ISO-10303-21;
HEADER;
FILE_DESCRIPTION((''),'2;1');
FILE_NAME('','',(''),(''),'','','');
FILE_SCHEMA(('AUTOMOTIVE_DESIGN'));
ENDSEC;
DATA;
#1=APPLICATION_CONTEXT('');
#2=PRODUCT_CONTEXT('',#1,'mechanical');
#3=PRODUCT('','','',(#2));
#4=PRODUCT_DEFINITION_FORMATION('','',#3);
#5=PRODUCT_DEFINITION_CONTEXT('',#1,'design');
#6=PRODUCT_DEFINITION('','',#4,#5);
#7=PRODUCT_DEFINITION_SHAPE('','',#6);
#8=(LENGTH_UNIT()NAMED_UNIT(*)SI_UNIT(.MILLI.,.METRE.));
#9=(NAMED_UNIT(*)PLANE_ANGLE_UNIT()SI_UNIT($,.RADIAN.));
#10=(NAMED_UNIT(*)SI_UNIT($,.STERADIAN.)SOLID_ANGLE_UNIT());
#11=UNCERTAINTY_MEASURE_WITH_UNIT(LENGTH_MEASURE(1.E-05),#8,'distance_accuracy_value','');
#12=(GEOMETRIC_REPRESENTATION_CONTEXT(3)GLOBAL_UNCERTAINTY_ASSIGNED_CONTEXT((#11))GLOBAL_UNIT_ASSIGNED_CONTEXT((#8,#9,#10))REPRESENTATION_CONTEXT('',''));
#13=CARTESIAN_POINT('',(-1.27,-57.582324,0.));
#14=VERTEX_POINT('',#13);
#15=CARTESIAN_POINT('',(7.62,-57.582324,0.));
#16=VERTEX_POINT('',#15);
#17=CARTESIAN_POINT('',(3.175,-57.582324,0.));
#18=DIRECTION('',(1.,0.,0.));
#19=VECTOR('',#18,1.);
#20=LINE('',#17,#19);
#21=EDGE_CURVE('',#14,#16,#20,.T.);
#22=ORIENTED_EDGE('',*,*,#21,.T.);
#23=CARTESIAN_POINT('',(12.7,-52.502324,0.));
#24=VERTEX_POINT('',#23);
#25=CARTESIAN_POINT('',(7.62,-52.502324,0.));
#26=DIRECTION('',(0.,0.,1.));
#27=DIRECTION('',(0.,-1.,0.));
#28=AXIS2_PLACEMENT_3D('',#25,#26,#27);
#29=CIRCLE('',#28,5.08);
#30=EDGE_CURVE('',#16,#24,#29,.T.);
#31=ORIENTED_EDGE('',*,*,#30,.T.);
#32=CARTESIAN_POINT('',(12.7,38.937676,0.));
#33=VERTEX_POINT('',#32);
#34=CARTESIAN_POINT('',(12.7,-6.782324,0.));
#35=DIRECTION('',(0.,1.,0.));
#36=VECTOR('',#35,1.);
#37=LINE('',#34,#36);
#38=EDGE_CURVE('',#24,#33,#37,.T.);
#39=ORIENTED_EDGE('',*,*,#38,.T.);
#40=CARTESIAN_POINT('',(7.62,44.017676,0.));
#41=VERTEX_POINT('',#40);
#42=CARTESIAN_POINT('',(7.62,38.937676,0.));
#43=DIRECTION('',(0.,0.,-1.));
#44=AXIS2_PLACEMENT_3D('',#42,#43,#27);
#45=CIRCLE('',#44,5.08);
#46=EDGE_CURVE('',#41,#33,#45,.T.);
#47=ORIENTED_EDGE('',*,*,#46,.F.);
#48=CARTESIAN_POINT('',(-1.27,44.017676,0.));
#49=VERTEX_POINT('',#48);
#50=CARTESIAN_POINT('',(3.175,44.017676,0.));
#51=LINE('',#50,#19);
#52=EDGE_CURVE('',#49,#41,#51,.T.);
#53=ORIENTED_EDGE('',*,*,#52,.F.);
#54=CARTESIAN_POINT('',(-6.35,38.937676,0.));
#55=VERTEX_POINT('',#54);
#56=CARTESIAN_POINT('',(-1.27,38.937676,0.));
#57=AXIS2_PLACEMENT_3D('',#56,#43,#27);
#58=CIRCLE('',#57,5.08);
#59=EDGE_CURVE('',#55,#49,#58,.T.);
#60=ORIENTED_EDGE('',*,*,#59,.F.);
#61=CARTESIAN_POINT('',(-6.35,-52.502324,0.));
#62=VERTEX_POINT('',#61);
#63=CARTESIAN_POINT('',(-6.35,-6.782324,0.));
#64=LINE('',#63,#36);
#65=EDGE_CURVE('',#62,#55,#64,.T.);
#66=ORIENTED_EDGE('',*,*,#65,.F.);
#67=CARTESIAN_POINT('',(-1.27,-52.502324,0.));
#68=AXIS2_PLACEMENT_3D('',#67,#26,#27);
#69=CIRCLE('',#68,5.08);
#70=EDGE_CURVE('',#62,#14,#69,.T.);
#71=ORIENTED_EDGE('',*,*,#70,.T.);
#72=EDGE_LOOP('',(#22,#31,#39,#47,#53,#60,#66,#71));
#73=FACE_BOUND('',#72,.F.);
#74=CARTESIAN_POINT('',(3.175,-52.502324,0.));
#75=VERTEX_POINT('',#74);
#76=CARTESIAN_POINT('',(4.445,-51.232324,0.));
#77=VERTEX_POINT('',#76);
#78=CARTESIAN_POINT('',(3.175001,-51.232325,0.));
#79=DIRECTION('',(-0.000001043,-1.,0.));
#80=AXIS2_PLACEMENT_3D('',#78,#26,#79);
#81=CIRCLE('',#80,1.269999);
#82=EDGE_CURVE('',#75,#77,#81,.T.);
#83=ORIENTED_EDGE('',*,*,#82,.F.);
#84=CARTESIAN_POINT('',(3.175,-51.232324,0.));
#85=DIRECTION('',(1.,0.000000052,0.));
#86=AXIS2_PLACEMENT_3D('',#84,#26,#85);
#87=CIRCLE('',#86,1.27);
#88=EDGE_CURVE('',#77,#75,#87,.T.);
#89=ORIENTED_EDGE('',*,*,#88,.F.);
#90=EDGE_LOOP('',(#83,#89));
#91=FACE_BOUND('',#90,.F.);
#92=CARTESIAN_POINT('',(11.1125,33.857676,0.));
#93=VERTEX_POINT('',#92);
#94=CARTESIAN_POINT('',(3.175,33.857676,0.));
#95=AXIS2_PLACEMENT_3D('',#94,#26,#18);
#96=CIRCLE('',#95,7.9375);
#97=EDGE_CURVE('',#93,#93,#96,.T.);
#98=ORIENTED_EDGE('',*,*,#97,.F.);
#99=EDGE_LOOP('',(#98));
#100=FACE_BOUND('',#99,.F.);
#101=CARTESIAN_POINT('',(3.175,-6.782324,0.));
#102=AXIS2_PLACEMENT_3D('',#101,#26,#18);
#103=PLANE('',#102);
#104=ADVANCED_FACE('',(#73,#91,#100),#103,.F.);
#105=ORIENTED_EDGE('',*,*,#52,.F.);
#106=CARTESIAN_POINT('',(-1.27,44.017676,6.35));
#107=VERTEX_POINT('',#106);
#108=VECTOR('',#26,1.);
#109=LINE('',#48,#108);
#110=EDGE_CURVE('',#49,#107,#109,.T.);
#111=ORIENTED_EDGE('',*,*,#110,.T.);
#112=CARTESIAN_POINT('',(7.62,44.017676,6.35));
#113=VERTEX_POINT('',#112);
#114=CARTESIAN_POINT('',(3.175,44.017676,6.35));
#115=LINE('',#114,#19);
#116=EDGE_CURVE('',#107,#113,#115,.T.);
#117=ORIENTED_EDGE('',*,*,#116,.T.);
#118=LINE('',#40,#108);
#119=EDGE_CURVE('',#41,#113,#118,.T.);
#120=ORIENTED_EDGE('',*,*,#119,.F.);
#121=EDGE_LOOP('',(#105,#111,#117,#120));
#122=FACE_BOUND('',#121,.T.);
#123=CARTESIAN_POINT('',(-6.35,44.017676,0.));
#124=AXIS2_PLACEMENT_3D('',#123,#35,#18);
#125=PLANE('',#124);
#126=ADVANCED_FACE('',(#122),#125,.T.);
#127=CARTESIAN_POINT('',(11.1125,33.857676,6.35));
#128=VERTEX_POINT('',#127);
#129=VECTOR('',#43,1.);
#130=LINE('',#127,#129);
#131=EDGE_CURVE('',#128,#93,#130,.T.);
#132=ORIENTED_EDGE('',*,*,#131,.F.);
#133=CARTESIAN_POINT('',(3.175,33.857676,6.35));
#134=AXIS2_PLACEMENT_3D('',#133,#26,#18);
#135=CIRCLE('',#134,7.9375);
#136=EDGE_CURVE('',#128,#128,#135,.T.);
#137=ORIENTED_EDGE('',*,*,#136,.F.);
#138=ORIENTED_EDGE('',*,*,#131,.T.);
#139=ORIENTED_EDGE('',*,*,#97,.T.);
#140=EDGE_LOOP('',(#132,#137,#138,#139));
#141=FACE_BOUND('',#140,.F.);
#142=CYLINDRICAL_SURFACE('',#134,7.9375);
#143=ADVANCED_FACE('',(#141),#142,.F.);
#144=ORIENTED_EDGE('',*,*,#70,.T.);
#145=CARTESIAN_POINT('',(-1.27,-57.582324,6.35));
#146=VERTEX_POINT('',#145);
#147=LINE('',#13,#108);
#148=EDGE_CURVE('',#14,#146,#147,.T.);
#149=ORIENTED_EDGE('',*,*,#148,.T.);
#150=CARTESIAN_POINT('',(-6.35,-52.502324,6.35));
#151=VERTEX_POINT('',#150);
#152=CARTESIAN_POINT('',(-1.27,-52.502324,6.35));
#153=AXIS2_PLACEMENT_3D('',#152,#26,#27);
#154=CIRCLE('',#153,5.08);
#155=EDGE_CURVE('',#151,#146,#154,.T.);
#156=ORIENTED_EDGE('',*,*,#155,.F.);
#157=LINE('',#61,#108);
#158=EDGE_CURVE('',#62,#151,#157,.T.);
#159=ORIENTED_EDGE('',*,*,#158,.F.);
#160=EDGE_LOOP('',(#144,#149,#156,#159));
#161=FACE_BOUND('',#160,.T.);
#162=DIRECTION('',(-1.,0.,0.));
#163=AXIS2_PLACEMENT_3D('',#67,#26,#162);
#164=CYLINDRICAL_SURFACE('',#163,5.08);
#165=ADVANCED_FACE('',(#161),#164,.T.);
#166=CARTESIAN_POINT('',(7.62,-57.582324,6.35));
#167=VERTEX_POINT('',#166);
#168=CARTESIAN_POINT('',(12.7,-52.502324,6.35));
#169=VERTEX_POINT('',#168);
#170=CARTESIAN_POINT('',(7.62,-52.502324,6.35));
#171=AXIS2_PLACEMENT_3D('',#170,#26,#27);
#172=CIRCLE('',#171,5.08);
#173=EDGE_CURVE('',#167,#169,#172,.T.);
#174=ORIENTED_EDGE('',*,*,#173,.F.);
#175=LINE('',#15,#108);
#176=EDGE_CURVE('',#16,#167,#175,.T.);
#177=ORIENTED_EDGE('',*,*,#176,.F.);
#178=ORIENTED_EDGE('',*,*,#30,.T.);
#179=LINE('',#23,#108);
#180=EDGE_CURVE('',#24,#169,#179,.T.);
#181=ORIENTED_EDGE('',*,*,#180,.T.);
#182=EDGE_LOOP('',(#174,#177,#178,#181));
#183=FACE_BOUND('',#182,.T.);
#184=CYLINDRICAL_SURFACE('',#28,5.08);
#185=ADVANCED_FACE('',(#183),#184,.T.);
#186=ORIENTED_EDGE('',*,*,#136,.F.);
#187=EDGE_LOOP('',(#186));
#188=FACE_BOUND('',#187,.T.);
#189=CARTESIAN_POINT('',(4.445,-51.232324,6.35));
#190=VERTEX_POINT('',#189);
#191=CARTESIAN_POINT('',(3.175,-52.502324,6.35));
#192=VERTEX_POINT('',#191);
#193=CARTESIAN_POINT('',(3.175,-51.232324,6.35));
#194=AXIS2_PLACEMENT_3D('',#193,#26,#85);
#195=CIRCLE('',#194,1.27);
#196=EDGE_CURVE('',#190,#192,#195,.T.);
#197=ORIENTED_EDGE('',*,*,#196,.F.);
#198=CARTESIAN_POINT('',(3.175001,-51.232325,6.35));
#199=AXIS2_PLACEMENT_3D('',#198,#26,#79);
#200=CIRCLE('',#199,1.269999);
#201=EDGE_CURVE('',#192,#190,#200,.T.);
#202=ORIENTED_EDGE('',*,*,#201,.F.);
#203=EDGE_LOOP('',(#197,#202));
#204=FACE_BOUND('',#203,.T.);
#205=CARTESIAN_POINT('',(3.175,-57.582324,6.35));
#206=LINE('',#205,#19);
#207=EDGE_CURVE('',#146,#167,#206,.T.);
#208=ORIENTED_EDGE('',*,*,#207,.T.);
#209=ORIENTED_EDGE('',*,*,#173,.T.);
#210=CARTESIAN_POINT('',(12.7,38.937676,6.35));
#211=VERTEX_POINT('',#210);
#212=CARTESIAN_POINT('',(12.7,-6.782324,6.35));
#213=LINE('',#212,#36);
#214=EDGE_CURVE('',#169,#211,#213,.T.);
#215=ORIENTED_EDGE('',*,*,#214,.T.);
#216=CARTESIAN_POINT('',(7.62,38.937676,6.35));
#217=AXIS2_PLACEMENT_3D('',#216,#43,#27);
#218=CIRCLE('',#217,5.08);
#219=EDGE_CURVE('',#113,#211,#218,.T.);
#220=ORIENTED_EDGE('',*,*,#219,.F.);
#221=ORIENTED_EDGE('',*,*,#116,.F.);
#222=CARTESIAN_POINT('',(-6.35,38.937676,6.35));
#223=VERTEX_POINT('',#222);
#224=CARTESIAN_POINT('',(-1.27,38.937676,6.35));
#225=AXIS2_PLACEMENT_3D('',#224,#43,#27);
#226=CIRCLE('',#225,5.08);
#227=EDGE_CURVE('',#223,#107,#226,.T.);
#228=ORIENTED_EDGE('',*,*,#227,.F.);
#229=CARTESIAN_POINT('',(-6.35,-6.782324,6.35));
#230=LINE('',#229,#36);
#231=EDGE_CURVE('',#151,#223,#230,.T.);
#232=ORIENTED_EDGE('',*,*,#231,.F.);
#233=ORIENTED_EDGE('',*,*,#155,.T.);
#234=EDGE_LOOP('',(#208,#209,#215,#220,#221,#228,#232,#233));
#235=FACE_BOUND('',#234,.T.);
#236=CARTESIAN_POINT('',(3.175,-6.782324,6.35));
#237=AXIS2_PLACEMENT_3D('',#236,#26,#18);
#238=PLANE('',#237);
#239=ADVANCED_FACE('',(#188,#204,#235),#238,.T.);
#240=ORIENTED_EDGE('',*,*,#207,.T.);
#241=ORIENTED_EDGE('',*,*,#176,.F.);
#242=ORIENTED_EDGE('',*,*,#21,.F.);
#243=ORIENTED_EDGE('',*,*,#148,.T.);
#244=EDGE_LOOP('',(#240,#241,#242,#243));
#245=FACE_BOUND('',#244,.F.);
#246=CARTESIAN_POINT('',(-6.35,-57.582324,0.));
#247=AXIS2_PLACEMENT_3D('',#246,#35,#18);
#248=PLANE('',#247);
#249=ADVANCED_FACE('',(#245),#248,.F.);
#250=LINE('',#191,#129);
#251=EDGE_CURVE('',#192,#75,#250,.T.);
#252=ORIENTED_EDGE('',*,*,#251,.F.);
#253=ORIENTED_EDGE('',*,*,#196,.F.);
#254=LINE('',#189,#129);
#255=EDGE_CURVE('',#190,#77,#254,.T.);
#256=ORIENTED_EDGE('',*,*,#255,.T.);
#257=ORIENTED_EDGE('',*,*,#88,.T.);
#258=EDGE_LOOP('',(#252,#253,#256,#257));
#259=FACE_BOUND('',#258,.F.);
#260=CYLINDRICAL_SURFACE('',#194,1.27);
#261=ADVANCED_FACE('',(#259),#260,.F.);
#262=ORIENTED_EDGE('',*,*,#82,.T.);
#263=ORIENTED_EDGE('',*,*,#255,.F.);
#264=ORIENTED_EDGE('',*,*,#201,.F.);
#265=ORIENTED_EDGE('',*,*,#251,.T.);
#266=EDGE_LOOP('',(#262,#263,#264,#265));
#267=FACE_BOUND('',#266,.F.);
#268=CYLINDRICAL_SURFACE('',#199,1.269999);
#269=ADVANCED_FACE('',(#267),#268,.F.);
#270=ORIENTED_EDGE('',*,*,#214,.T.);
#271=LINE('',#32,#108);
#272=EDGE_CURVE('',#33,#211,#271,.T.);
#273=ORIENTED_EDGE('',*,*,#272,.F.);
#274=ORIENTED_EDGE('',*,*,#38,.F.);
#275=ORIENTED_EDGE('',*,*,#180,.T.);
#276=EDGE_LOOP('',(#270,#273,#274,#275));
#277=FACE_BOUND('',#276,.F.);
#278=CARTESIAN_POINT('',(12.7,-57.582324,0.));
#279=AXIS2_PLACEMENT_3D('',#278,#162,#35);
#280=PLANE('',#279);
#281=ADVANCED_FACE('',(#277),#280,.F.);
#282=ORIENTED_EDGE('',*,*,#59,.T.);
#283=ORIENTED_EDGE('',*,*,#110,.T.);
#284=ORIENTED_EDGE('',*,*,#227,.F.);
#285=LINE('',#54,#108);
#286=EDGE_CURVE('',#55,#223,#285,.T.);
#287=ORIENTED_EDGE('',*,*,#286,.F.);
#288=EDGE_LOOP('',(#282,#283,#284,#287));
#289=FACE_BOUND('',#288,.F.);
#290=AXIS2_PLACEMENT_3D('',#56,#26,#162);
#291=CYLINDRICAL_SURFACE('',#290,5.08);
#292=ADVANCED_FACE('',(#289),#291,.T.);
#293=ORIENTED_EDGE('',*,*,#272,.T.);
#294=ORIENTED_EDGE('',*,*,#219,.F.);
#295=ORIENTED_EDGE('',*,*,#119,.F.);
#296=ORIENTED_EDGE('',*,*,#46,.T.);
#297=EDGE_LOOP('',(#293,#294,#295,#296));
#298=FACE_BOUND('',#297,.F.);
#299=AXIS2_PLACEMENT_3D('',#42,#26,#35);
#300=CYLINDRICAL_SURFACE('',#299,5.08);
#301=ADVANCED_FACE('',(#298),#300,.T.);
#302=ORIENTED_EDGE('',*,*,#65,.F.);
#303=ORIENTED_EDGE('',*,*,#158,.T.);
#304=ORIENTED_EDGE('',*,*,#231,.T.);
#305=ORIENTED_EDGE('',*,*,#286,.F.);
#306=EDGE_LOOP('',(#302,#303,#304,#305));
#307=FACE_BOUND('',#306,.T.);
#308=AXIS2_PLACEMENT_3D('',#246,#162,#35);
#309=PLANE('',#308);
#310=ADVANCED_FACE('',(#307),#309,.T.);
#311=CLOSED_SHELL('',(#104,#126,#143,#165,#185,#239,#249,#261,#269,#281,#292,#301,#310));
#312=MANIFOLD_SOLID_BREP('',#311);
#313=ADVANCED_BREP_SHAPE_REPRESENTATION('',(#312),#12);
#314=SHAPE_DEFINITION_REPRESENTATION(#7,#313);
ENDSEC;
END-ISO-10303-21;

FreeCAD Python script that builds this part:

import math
import FreeCAD as App
import Part
import Sketcher
from FreeCAD import Vector
Q = App.Units.Quantity


def edges_at(feature, points):
    """Names of the edges that pass closest to the given points."""
    edges = feature.Shape.Edges
    near = lambda p: min(range(len(edges)), key=lambda i: edges[i].distToShape(Part.Vertex(*p))[0])
    return sorted({f"Edge{near(p) + 1}" for p in points})

doc = App.newDocument("Part")
body = doc.addObject("PartDesign::Body", "Body")

# Sketch on XY plane
sketch1 = body.newObject("Sketcher::SketchObject", "Sketch")
sketch1.AttachmentSupport = (doc.getObject("XY_Plane"), [""])
sketch1.MapMode = "FlatFace"
sketch1.addGeometry([
    Part.LineSegment(Vector(-6, 44, 0), Vector(-6, -58, 0)),
    Part.LineSegment(Vector(-6, -58, 0), Vector(13, -58, 0)),
    Part.LineSegment(Vector(13, -58, 0), Vector(13, 44, 0)),
    Part.LineSegment(Vector(13, 44, 0), Vector(-6, 44, 0)),
], False)
sketch1.addConstraint([
    Sketcher.Constraint("Coincident", 0, 2, 1, 1),
    Sketcher.Constraint("Coincident", 1, 2, 2, 1),
    Sketcher.Constraint("Coincident", 2, 2, 3, 1),
    Sketcher.Constraint("Coincident", 3, 2, 0, 1),
    Sketcher.Constraint("Vertical", 0),
    Sketcher.Constraint("Horizontal", 1),
    Sketcher.Constraint("Vertical", 2),
    Sketcher.Constraint("Horizontal", 3),
    Sketcher.Constraint("DistanceY", 0, 2, 0, 1, Q("4 in")),
    Sketcher.Constraint("DistanceX", 1, 1, 1, 2, Q("0.75 in")),
    Sketcher.Constraint("DistanceX", -1, 1, 1, 2, Q("0.5 in")),
    Sketcher.Constraint("DistanceY", 0, 2, -1, 1, 57.582324),
])
pad1 = body.newObject("PartDesign::Pad", "Pad")
pad1.Profile = sketch1
pad1.Length = Q("0.25 in")

# Sketch on XY plane
sketch2 = body.newObject("Sketcher::SketchObject", "Sketch001")
sketch2.AttachmentSupport = (doc.getObject("XY_Plane"), [""])
sketch2.MapMode = "FlatFace"
sketch2.AttachmentOffset = App.Placement(Vector(0, 0, 0.25 * 25.4), App.Rotation())
sketch2.addGeometry([
    Part.Circle(Vector(3.2, 33.9, 0), Vector(0, 0, 1), 7.9),
    Part.ArcOfCircle(Part.Circle(Vector(3.2, -51.2, 0), Vector(0, 0, 1), 1.3), math.radians(0), math.radians(270)),
    Part.ArcOfCircle(Part.Circle(Vector(3.2, -51.2, 0), Vector(0, 0, 1), 1.3), math.radians(-90), math.radians(0)),
], False)
sketch2.addConstraint([
    Sketcher.Constraint("Tangent", 1, 1, 2, 2),
    Sketcher.Constraint("Coincident", 2, 1, 1, 2),
    Sketcher.Constraint("Horizontal", 2, 3, 1, 1),
    Sketcher.Constraint("Vertical", 0, 3, 1, 3),
    Sketcher.Constraint("Vertical", 1, 3, 2, 1),
    Sketcher.Constraint("Radius", 1, Q("0.05 in")),
    Sketcher.Constraint("Diameter", 0, Q("0.625 in")),
    Sketcher.Constraint("DistanceY", 2, 1, 0, 3, Q("3.4 in")),
    Sketcher.Constraint("DistanceX", -1, 1, 0, 3, Q("0.125 in")),
    Sketcher.Constraint("DistanceY", -1, 1, 0, 3, 33.857676),
])
pocket1 = body.newObject("PartDesign::Pocket", "Pocket")
pocket1.Profile = sketch2
pocket1.Length = Q("1 in")
doc.recompute()

fillet = body.newObject("PartDesign::Fillet", "Fillet")
fillet.Base = (pocket1, edges_at(pocket1, [
    (-6.35, 44.018, 3.175),
    (-6.35, -57.582, 3.175),
    (12.7, -57.582, 3.175),
    (12.7, 44.018, 3.175),
]))
fillet.Radius = Q("0.2 in")

doc.recompute()
